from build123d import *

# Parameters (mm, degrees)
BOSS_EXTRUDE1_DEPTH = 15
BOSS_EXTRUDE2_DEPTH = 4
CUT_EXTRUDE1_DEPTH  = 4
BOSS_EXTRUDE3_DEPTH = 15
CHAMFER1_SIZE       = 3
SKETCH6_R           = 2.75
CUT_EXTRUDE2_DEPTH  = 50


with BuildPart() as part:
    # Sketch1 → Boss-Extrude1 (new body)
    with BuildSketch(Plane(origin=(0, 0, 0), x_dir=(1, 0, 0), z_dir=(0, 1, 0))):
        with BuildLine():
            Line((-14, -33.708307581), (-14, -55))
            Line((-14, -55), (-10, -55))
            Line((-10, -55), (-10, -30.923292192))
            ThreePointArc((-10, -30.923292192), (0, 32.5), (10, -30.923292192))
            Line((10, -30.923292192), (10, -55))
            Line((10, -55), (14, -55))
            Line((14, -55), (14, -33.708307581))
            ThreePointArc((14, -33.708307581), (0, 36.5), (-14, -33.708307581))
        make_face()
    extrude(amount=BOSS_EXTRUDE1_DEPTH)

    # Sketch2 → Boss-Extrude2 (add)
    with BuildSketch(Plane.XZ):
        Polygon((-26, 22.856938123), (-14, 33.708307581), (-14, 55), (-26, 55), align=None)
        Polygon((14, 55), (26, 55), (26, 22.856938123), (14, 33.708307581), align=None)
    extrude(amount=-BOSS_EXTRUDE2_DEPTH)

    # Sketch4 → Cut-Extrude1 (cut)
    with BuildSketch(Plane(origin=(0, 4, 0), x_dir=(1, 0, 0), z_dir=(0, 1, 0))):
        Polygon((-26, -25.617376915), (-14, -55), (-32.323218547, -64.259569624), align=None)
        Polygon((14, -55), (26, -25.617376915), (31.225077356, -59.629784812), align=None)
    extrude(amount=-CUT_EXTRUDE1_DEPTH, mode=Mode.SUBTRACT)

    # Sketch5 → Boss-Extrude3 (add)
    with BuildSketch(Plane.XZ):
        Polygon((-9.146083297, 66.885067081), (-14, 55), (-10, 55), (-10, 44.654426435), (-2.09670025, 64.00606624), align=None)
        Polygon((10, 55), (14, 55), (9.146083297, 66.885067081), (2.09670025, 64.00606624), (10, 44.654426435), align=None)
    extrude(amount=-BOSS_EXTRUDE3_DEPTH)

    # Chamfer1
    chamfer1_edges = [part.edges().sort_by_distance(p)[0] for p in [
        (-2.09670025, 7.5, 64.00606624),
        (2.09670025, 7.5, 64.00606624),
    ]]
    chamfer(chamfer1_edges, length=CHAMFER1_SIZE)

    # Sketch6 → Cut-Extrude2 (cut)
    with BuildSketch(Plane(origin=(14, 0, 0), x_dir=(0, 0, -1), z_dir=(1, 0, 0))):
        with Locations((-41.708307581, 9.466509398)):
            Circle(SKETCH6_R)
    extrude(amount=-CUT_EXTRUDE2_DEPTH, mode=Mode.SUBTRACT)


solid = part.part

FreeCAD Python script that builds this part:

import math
import FreeCAD as App
import Part
import Sketcher
from FreeCAD import Vector


def edges_at(feature, points):
    """Names of the edges that pass closest to the given points."""
    edges = feature.Shape.Edges
    near = lambda p: min(range(len(edges)), key=lambda i: edges[i].distToShape(Part.Vertex(*p))[0])
    return sorted({f"Edge{near(p) + 1}" for p in points})


def add_polygon(sketch, points):
    """Adds a closed chain of lines whose ends are joined by coincident constraints."""
    first, n = sketch.GeometryCount, len(points)
    for a, b in zip(points, points[1:] + points[:1]):
        sketch.addGeometry(Part.LineSegment(App.Vector(*a, 0), App.Vector(*b, 0)), False)
    for i in range(n):
        sketch.addConstraint(Sketcher.Constraint("Coincident", first + i, 2, first + (i + 1) % n, 1))

doc = App.newDocument("Part")
body = doc.addObject("PartDesign::Body", "Body")

# Sketch on XZ plane
sketch1 = body.newObject("Sketcher::SketchObject", "Sketch")
sketch1.AttachmentSupport = (doc.getObject("XZ_Plane"), [""])
sketch1.MapMode = "FlatFace"
sketch1.addGeometry([
    Part.LineSegment(Vector(-14, 33.708308, 0), Vector(-14, 55, 0)),  # 0
    Part.LineSegment(Vector(-14, 55, 0), Vector(-10, 55, 0)),  # 1
    Part.LineSegment(Vector(-10, 55, 0), Vector(-10, 30.923292, 0)),  # 2
    Part.ArcOfCircle(Part.Circle(Vector(0, 0, 0), Vector(0, 0, 1), 32.5), math.radians(107.920213), math.radians(432.079787)),  # 3
    Part.LineSegment(Vector(10, 30.923292, 0), Vector(10, 55, 0)),  # 4
    Part.LineSegment(Vector(10, 55, 0), Vector(14, 55, 0)),  # 5
    Part.LineSegment(Vector(14, 55, 0), Vector(14, 33.708308, 0)),  # 6
    Part.ArcOfCircle(Part.Circle(Vector(0, 0, 0), Vector(0, 0, 1), 36.5), math.radians(112.554474), math.radians(427.445526)),  # 7
], False)
sketch1.addConstraint([
    Sketcher.Constraint("Coincident", 0, 2, 1, 1),
    Sketcher.Constraint("Coincident", 1, 2, 2, 1),
    Sketcher.Constraint("Coincident", 2, 2, 3, 1),
    Sketcher.Constraint("Coincident", 3, 2, 4, 1),
    Sketcher.Constraint("Coincident", 4, 2, 5, 1),
    Sketcher.Constraint("Coincident", 5, 2, 6, 1),
    Sketcher.Constraint("Coincident", 6, 2, 7, 2),
    Sketcher.Constraint("Coincident", 7, 1, 0, 1),
    Sketcher.Constraint("Vertical", 0),
    Sketcher.Constraint("Horizontal", 1),
    Sketcher.Constraint("Vertical", 2),
    Sketcher.Constraint("Vertical", 4),
    Sketcher.Constraint("Horizontal", 5),
    Sketcher.Constraint("Vertical", 6),
    Sketcher.Constraint("Coincident", 3, 3, -1, 1),
    Sketcher.Constraint("Coincident", 7, 3, -1, 1),
    Sketcher.Constraint("Symmetric", 1, 2, 4, 2, -2),
    Sketcher.Constraint("Horizontal", 6, 2, 7, 1),
    Sketcher.Constraint("Radius", 3, 32.5),
    Sketcher.Constraint("Radius", 7, 36.5),
    Sketcher.Constraint("DistanceX", 1, 1, 1, 2, 4.0),
    Sketcher.Constraint("DistanceX", 0, 2, -1, 1, 14.0),
    Sketcher.Constraint("DistanceY", -1, 1, 0, 2, 55.0),
])
pad1 = body.newObject("PartDesign::Pad", "Pad")
pad1.Profile = sketch1
pad1.Length = 15
pad1.Reversed = True

# Sketch on XZ plane
sketch2 = body.newObject("Sketcher::SketchObject", "Sketch001")
sketch2.AttachmentSupport = (doc.getObject("XZ_Plane"), [""])
sketch2.MapMode = "FlatFace"
add_polygon(sketch2, [(-26, 22.856938), (-14, 33.708308), (-14, 55), (-26, 55)])  # lines 0-3
add_polygon(sketch2, [(26, 55), (14, 55), (14, 33.708308), (26, 22.856938)])  # lines 4-7
sketch2.addConstraint([
    Sketcher.Constraint("Vertical", 1),
    Sketcher.Constraint("Horizontal", 2),
    Sketcher.Constraint("Vertical", 3),
    Sketcher.Constraint("Horizontal", 4),
    Sketcher.Constraint("Vertical", 5),
    Sketcher.Constraint("Vertical", 7),
    Sketcher.Constraint("Symmetric", 1, 2, 4, 2, -2),
    Sketcher.Constraint("Symmetric", 3, 2, 6, 2, -2),
    Sketcher.Constraint("Horizontal", 0, 2, 5, 2),
    Sketcher.Constraint("DistanceX", 2, 2, 2, 1, 12.0),
    Sketcher.Constraint("DistanceX", 0, 2, -1, 1, 14.0),
    Sketcher.Constraint("DistanceY", -1, 1, 1, 2, 55.0),
    Sketcher.Constraint("DistanceY", 3, 2, 3, 1, 32.143062),
    Sketcher.Constraint("Distance", 0, 16.178758),
])
pad2 = body.newObject("PartDesign::Pad", "Pad001")
pad2.Profile = sketch2
pad2.Length = 4
pad2.Reversed = True

# Sketch on XZ plane
sketch3 = body.newObject("Sketcher::SketchObject", "Sketch002")
sketch3.AttachmentSupport = (doc.getObject("XZ_Plane"), [""])
sketch3.MapMode = "FlatFace"
sketch3.AttachmentOffset = App.Placement(Vector(0, 0, -4), App.Rotation())
add_polygon(sketch3, [(-14, 55), (-26, 25.617377), (-32.323219, 64.25957)])  # lines 0-2
add_polygon(sketch3, [(26, 25.617377), (14, 55), (31.225077, 59.629785)])  # lines 3-5
sketch3.addConstraint([
    Sketcher.Constraint("Symmetric", 2, 2, 3, 2, -2),
    Sketcher.Constraint("Symmetric", 0, 2, 5, 2, -2),
    Sketcher.Constraint("DistanceX", 0, 2, -1, 1, 26.0),
    Sketcher.Constraint("DistanceX", 2, 2, -1, 1, 14.0),
    Sketcher.Constraint("DistanceY", -1, 1, 2, 2, 55.0),
    Sketcher.Constraint("Distance", 4, 17.836429),
    Sketcher.Constraint("DistanceX", 1, 2, -1, 1, 32.323219),
    Sketcher.Constraint("DistanceY", -1, 1, 1, 2, 64.25957),
    Sketcher.Constraint("Distance", 0, 31.738597),
    Sketcher.Constraint("Distance", 5, 34.411413),
])
pocket1 = body.newObject("PartDesign::Pocket", "Pocket")
pocket1.Profile = sketch3
pocket1.Length = 4
pocket1.Reversed = True

# Sketch on XZ plane
sketch4 = body.newObject("Sketcher::SketchObject", "Sketch003")
sketch4.AttachmentSupport = (doc.getObject("XZ_Plane"), [""])
sketch4.MapMode = "FlatFace"
add_polygon(sketch4, [(-9.146083, 66.885067), (-14, 55), (-10, 55), (-10, 44.654426), (-2.0967, 64.006066)])  # lines 0-4
add_polygon(sketch4, [(10, 55), (14, 55), (9.146083, 66.885067), (2.0967, 64.006066), (10, 44.654426)])  # lines 5-9
sketch4.addConstraint([
    Sketcher.Constraint("Horizontal", 1),
    Sketcher.Constraint("Vertical", 2),
    Sketcher.Constraint("Horizontal", 5),
    Sketcher.Constraint("Vertical", 9),
    Sketcher.Constraint("Symmetric", 0, 2, 5, 2, -2),
    Sketcher.Constraint("Symmetric", 4, 2, 6, 2, -2),
    Sketcher.Constraint("Symmetric", 3, 2, 7, 2, -2),
    Sketcher.Constraint("Symmetric", 2, 2, 8, 2, -2),
    Sketcher.Constraint("Parallel", 0, 3),
    Sketcher.Constraint("Perpendicular", 3, 4),
    Sketcher.Constraint("DistanceX", 1, 1, 1, 2, 4.0),
    Sketcher.Constraint("DistanceX", 0, 2, -1, 1, 14.0),
    Sketcher.Constraint("DistanceY", -1, 1, 0, 2, 55.0),
    Sketcher.Constraint("DistanceY", 3, 2, 4, 2, 2.879001),
    Sketcher.Constraint("DistanceX", 3, 2, -1, 1, 2.0967),
    Sketcher.Constraint("Distance", 4, 7.614621),
])
pad3 = body.newObject("PartDesign::Pad", "Pad002")
pad3.Profile = sketch4
pad3.Length = 15
pad3.Reversed = True
doc.recompute()

chamfer = body.newObject("PartDesign::Chamfer", "Chamfer")
chamfer.Base = (pad3, edges_at(pad3, [(-2.097, 7.5, 64.006), (2.097, 7.5, 64.006)]))
chamfer.Size = 3

# Sketch on YZ plane
sketch5 = body.newObject("Sketcher::SketchObject", "Sketch004")
sketch5.AttachmentSupport = (doc.getObject("YZ_Plane"), [""])
sketch5.MapMode = "FlatFace"
sketch5.AttachmentOffset = App.Placement(Vector(0, 0, 14), App.Rotation())
sketch5.addGeometry(Part.Circle(Vector(9.466509, 41.708308, 0), Vector(0, 0, 1), 2.75), False)
sketch5.addConstraint([
    Sketcher.Constraint("Diameter", 0, 5.5),
    Sketcher.Constraint("DistanceX", -1, 1, 0, 3, 9.466509),
    Sketcher.Constraint("DistanceY", -1, 1, 0, 3, 41.708308),
])
pocket2 = body.newObject("PartDesign::Pocket", "Pocket001")
pocket2.Profile = sketch5
pocket2.Length = 50

doc.recompute()
